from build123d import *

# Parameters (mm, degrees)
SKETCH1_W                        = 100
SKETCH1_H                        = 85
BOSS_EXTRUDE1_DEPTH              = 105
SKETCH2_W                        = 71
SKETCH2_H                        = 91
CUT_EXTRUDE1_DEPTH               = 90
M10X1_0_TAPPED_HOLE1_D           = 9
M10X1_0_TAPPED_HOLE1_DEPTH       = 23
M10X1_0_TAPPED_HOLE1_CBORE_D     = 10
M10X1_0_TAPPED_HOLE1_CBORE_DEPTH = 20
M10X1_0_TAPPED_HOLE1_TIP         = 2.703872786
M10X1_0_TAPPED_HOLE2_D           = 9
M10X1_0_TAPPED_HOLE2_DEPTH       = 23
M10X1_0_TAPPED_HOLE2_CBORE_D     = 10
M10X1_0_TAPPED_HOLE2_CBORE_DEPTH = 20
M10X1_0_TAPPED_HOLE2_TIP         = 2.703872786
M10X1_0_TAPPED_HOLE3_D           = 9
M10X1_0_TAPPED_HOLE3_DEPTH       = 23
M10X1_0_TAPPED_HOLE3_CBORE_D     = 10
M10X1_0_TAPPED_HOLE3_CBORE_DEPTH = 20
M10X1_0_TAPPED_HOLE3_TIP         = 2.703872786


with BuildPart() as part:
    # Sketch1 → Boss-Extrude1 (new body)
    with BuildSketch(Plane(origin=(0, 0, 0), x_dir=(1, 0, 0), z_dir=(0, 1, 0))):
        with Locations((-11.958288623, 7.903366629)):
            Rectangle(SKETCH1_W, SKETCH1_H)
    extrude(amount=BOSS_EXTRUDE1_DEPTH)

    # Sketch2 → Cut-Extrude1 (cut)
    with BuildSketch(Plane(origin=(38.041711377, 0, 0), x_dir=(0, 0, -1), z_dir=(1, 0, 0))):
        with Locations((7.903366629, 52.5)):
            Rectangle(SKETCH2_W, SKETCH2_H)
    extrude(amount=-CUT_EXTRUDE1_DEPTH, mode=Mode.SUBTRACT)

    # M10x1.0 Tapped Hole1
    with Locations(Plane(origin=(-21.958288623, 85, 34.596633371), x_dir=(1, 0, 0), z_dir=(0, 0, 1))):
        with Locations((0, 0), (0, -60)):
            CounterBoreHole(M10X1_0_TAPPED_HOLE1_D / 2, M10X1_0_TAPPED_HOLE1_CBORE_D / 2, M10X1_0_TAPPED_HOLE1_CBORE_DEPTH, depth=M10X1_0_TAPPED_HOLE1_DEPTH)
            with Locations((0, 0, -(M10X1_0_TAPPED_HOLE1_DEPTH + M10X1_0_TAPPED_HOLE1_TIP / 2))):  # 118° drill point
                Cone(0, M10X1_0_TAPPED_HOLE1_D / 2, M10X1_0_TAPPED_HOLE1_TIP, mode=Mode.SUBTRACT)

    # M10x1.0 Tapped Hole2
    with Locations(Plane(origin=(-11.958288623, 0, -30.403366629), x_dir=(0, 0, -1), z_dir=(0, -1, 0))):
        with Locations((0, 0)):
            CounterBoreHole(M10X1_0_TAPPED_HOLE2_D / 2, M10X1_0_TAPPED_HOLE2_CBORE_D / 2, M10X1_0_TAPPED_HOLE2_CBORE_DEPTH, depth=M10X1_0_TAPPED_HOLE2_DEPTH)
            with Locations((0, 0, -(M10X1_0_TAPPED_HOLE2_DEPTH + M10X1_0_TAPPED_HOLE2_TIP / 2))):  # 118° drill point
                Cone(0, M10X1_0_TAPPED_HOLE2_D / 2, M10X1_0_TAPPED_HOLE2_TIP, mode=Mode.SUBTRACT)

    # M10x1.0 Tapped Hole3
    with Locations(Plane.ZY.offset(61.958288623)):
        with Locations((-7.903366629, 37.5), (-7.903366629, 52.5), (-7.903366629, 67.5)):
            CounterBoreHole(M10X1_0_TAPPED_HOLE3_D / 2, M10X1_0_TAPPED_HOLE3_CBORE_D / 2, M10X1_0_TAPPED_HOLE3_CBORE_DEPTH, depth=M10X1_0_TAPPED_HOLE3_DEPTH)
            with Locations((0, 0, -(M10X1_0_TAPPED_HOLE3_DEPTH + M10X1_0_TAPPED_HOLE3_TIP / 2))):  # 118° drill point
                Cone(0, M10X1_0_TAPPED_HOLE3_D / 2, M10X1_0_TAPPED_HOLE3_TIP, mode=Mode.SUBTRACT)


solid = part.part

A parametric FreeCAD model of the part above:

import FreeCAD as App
import Part
import Sketcher


def add_polygon(sketch, points):
    """Adds a closed chain of lines whose ends are joined by coincident constraints."""
    first, n = sketch.GeometryCount, len(points)
    for a, b in zip(points, points[1:] + points[:1]):
        sketch.addGeometry(Part.LineSegment(App.Vector(*a, 0), App.Vector(*b, 0)), False)
    for i in range(n):
        sketch.addConstraint(Sketcher.Constraint("Coincident", first + i, 2, first + (i + 1) % n, 1))

doc = App.newDocument("Part")
params = doc.addObject("Spreadsheet::Sheet", "Params")
for row, (alias, value) in enumerate([
    ("sketch1_width", "100 mm"),
    ("sketch1_height", "85 mm"),
    ("pad1_length", "105 mm"),
    ("sketch2_width", "91 mm"),
    ("sketch2_height", "71 mm"),
    ("pocket1_length", "90 mm"),
    ("sketch3_diameter", "9 mm"),
    ("hole_diameter", "9 mm"),
    ("hole_depth", "23 mm"),
    ("hole_cbore_diameter", "10 mm"),
    ("hole_cbore_depth", "20 mm"),
    ("sketch4_diameter", "9 mm"),
    ("hole2_diameter", "9 mm"),
    ("hole2_depth", "23 mm"),
    ("hole2_cbore_diameter", "10 mm"),
    ("hole2_cbore_depth", "20 mm"),
    ("sketch5_diameter", "9 mm"),
    ("hole3_diameter", "9 mm"),
    ("hole3_depth", "23 mm"),
    ("hole3_cbore_diameter", "10 mm"),
    ("hole3_cbore_depth", "20 mm"),
], start=1):
    params.set(f"A{row}", alias)
    params.set(f"B{row}", "=" + value)
    params.setAlias(f"B{row}", alias)

body = doc.addObject("PartDesign::Body", "Body")

# Sketch on XZ plane
sketch1 = body.newObject("Sketcher::SketchObject", "Sketch")
sketch1.AttachmentSupport = (doc.getObject("XZ_Plane"), [""])
sketch1.MapMode = "FlatFace"
add_polygon(sketch1, [(-62, -50), (-62, 35), (38, 35), (38, -50)])  # lines 0-3
sketch1.addConstraint([
    Sketcher.Constraint("Vertical", 0),
    Sketcher.Constraint("Horizontal", 1),
    Sketcher.Constraint("Vertical", 2),
    Sketcher.Constraint("Horizontal", 3),
    Sketcher.Constraint("DistanceX", 1, 1, 1, 2, 100.0),
    Sketcher.Constraint("DistanceY", 0, 1, 0, 2, 85.0),
    Sketcher.Constraint("DistanceX", 0, 2, -1, 1, 61.958289),
    Sketcher.Constraint("DistanceY", -1, 1, 0, 2, 34.596633),
])
sketch1.setExpression("Constraints[8]", "Params.sketch1_width")
sketch1.setExpression("Constraints[9]", "Params.sketch1_height")
pad1 = body.newObject("PartDesign::Pad", "Pad")
pad1.Profile = sketch1
pad1.setExpression("Length", "Params.pad1_length")
pad1.Reversed = True

# Sketch on YZ plane
sketch2 = body.newObject("Sketcher::SketchObject", "Sketch001")
sketch2.AttachmentSupport = (doc.getObject("YZ_Plane"), [""])
sketch2.MapMode = "FlatFace"
sketch2.AttachmentOffset = App.Placement(App.Vector(0, 0, 38.041711), App.Rotation())
add_polygon(sketch2, [(98, 28), (7, 28), (7, -43), (98, -43)])  # lines 0-3
sketch2.addConstraint([
    Sketcher.Constraint("Horizontal", 0),
    Sketcher.Constraint("Vertical", 1),
    Sketcher.Constraint("Horizontal", 2),
    Sketcher.Constraint("Vertical", 3),
    Sketcher.Constraint("DistanceX", 0, 2, 0, 1, 91.0),
    Sketcher.Constraint("DistanceY", 1, 2, 1, 1, 71.0),
    Sketcher.Constraint("DistanceX", -1, 1, 0, 2, 7.0),
    Sketcher.Constraint("DistanceY", -1, 1, 0, 2, 27.596633),
])
sketch2.setExpression("Constraints[8]", "Params.sketch2_width")
sketch2.setExpression("Constraints[9]", "Params.sketch2_height")
pocket1 = body.newObject("PartDesign::Pocket", "Pocket")
pocket1.Profile = sketch2
pocket1.setExpression("Length", "Params.pocket1_length")

# Sketch on XY plane
sketch3 = body.newObject("Sketcher::SketchObject", "Sketch002")
sketch3.AttachmentSupport = (doc.getObject("XY_Plane"), [""])
sketch3.MapMode = "FlatFace"
sketch3.AttachmentOffset = App.Placement(App.Vector(0, 0, 34.596633), App.Rotation())
sketch3.addGeometry([
    Part.Circle(App.Vector(-22, 85, 0), App.Vector(0, 0, 1), 4.5),
    Part.Circle(App.Vector(-22, 25, 0), App.Vector(0, 0, 1), 4.5),
], False)
sketch3.addConstraint([
    Sketcher.Constraint("Equal", 0, 1),
    Sketcher.Constraint("Vertical", 0, 3, 1, 3),
    Sketcher.Constraint("Diameter", 0, 9.0),
    Sketcher.Constraint("DistanceY", -1, 1, 0, 3, 85.0),
    Sketcher.Constraint("DistanceY", -1, 1, 1, 3, 25.0),
    Sketcher.Constraint("DistanceX", 0, 3, -1, 1, 21.958289),
])
sketch3.setExpression("Constraints[2]", "Params.sketch3_diameter")
doc.recompute()
hole = body.newObject("PartDesign::Hole", "Hole")
hole.Profile = sketch3
hole.ThreadType = "None"
hole.setExpression("Diameter", "Params.hole_diameter")
hole.DepthType = "Dimension"
hole.setExpression("Depth", "Params.hole_depth")
hole.DrillPoint = "Angled"
hole.DrillPointAngle = 118
hole.HoleCutType = "Counterbore"
hole.setExpression("HoleCutDiameter", "Params.hole_cbore_diameter")
hole.setExpression("HoleCutDepth", "Params.hole_cbore_depth")

# Sketch on XZ plane
sketch4 = body.newObject("Sketcher::SketchObject", "Sketch003")
sketch4.AttachmentSupport = (doc.getObject("XZ_Plane"), [""])
sketch4.MapMode = "FlatFace"
sketch4.addGeometry(Part.Circle(App.Vector(-12, -30.4, 0), App.Vector(0, 0, 1), 4.5), False)
sketch4.addConstraint([
    Sketcher.Constraint("Diameter", 0, 9.0),
    Sketcher.Constraint("DistanceX", 0, 3, -1, 1, 11.958289),
    Sketcher.Constraint("DistanceY", 0, 3, -1, 1, 30.403367),
])
sketch4.setExpression("Constraints[0]", "Params.sketch4_diameter")
doc.recompute()
hole2 = body.newObject("PartDesign::Hole", "Hole001")
hole2.Profile = sketch4
hole2.ThreadType = "None"
hole2.setExpression("Diameter", "Params.hole2_diameter")
hole2.DepthType = "Dimension"
hole2.setExpression("Depth", "Params.hole2_depth")
hole2.DrillPoint = "Angled"
hole2.DrillPointAngle = 118
hole2.HoleCutType = "Counterbore"
hole2.setExpression("HoleCutDiameter", "Params.hole2_cbore_diameter")
hole2.setExpression("HoleCutDepth", "Params.hole2_cbore_depth")

# Sketch on YZ plane
sketch5 = body.newObject("Sketcher::SketchObject", "Sketch004")
sketch5.AttachmentSupport = (doc.getObject("YZ_Plane"), [""])
sketch5.MapMode = "FlatFace"
sketch5.AttachmentOffset = App.Placement(App.Vector(0, 0, -61.958289), App.Rotation())
sketch5.addGeometry([
    Part.Circle(App.Vector(37.5, -7.9, 0), App.Vector(0, 0, 1), 4.5),
    Part.Circle(App.Vector(52.5, -7.9, 0), App.Vector(0, 0, 1), 4.5),
    Part.Circle(App.Vector(67.5, -7.9, 0), App.Vector(0, 0, 1), 4.5),
], False)
sketch5.addConstraint([
    Sketcher.Constraint("Equal", 0, 1),
    Sketcher.Constraint("Equal", 1, 2),
    Sketcher.Constraint("Horizontal", 0, 3, 1, 3),
    Sketcher.Constraint("Horizontal", 1, 3, 2, 3),
    Sketcher.Constraint("Diameter", 0, 9.0),
    Sketcher.Constraint("DistanceX", 0, 3, 1, 3, 15.0),
    Sketcher.Constraint("DistanceX", 1, 3, 2, 3, 15.0),
    Sketcher.Constraint("DistanceX", -1, 1, 0, 3, 37.5),
    Sketcher.Constraint("DistanceY", 0, 3, -1, 1, 7.903367),
])
sketch5.setExpression("Constraints[4]", "Params.sketch5_diameter")
doc.recompute()
hole3 = body.newObject("PartDesign::Hole", "Hole002")
hole3.Profile = sketch5
hole3.ThreadType = "None"
hole3.setExpression("Diameter", "Params.hole3_diameter")
hole3.DepthType = "Dimension"
hole3.setExpression("Depth", "Params.hole3_depth")
hole3.DrillPoint = "Angled"
hole3.DrillPointAngle = 118
hole3.HoleCutType = "Counterbore"
hole3.setExpression("HoleCutDiameter", "Params.hole3_cbore_diameter")
hole3.setExpression("HoleCutDepth", "Params.hole3_cbore_depth")
hole3.Reversed = True

doc.recompute()
